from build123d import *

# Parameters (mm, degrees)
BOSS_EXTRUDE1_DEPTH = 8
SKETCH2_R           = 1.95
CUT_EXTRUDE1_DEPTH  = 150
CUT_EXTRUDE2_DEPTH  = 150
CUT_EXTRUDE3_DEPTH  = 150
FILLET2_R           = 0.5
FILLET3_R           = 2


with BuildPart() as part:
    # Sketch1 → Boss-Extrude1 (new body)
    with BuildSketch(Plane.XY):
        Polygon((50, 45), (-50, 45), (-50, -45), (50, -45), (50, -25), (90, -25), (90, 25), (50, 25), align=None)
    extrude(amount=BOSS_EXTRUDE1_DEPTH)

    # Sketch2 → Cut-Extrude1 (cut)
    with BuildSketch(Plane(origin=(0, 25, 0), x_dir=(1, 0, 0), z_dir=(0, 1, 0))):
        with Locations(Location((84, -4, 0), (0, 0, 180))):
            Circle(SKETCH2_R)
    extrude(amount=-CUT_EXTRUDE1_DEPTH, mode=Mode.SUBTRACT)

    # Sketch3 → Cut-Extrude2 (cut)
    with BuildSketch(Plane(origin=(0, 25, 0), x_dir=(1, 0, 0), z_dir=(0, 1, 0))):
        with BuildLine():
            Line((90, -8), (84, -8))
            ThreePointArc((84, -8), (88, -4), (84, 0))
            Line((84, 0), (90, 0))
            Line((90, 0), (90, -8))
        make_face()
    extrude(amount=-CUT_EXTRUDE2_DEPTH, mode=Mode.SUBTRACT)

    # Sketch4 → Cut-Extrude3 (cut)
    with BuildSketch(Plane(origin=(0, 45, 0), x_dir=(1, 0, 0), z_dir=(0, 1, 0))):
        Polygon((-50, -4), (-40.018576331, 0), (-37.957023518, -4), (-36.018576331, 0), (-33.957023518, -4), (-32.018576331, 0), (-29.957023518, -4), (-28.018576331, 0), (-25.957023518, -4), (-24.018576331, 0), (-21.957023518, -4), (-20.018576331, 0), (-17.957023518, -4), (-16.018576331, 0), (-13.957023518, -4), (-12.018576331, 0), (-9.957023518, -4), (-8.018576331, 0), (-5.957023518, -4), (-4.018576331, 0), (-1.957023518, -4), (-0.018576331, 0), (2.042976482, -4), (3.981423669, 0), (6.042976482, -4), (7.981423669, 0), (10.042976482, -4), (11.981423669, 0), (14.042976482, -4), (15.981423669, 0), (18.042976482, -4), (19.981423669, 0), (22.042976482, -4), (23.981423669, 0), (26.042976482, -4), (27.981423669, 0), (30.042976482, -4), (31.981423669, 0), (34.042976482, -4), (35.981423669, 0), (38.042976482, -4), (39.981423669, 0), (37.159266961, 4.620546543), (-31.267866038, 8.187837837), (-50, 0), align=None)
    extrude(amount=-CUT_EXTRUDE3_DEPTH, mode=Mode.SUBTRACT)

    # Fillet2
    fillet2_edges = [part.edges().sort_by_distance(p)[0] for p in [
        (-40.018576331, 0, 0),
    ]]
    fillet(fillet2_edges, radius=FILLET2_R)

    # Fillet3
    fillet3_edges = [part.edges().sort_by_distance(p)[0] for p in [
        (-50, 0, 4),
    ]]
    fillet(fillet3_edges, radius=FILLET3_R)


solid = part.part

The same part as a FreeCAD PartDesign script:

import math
import FreeCAD as App
import Part
import Sketcher
Q = App.Units.Quantity


def edges_at(feature, points):
    """Names of the edges that pass closest to the given points."""
    edges = feature.Shape.Edges
    near = lambda p: min(range(len(edges)), key=lambda i: edges[i].distToShape(Part.Vertex(*p))[0])
    return sorted({f"Edge{near(p) + 1}" for p in points})

doc = App.newDocument("Part")
body = doc.addObject("PartDesign::Body", "Body")

# Sketch on XY plane
sketch1 = doc.addObject("Sketcher::SketchObject", "Sketch")
body.addObject(sketch1)
sketch1.AttachmentSupport = (doc.XY_Plane, [""])
sketch1.MapMode = "FlatFace"
sketch1.addGeometry(Part.LineSegment(App.Vector(50, 45, 0), App.Vector(-50, 45, 0)), False)
sketch1.addGeometry(Part.LineSegment(App.Vector(-50, 45, 0), App.Vector(-50, -45, 0)), False)
sketch1.addGeometry(Part.LineSegment(App.Vector(-50, -45, 0), App.Vector(50, -45, 0)), False)
sketch1.addGeometry(Part.LineSegment(App.Vector(50, -45, 0), App.Vector(50, -25, 0)), False)
sketch1.addGeometry(Part.LineSegment(App.Vector(50, -25, 0), App.Vector(90, -25, 0)), False)
sketch1.addGeometry(Part.LineSegment(App.Vector(90, -25, 0), App.Vector(90, 25, 0)), False)
sketch1.addGeometry(Part.LineSegment(App.Vector(90, 25, 0), App.Vector(50, 25, 0)), False)
sketch1.addGeometry(Part.LineSegment(App.Vector(50, 25, 0), App.Vector(50, 45, 0)), False)
sketch1.addConstraint(Sketcher.Constraint("Coincident", 0, 2, 1, 1))
sketch1.addConstraint(Sketcher.Constraint("Coincident", 1, 2, 2, 1))
sketch1.addConstraint(Sketcher.Constraint("Coincident", 2, 2, 3, 1))
sketch1.addConstraint(Sketcher.Constraint("Coincident", 3, 2, 4, 1))
sketch1.addConstraint(Sketcher.Constraint("Coincident", 4, 2, 5, 1))
sketch1.addConstraint(Sketcher.Constraint("Coincident", 5, 2, 6, 1))
sketch1.addConstraint(Sketcher.Constraint("Coincident", 6, 2, 7, 1))
sketch1.addConstraint(Sketcher.Constraint("Coincident", 7, 2, 0, 1))
sketch1.addConstraint(Sketcher.Constraint("Horizontal", 0))
sketch1.addConstraint(Sketcher.Constraint("Vertical", 1))
sketch1.addConstraint(Sketcher.Constraint("Horizontal", 2))
sketch1.addConstraint(Sketcher.Constraint("Vertical", 3))
sketch1.addConstraint(Sketcher.Constraint("Horizontal", 4))
sketch1.addConstraint(Sketcher.Constraint("Vertical", 5))
sketch1.addConstraint(Sketcher.Constraint("Horizontal", 6))
sketch1.addConstraint(Sketcher.Constraint("Vertical", 7))
sketch1.addConstraint(Sketcher.Constraint("Symmetric", 0, 2, 2, 2, -1, 1))
sketch1.addConstraint(Sketcher.Constraint("Symmetric", 3, 2, 6, 2, -1))
sketch1.addConstraint(Sketcher.Constraint("DistanceX", 0, 2, 0, 1, Q("100 mm")))
sketch1.addConstraint(Sketcher.Constraint("DistanceX", 4, 1, 4, 2, Q("40 mm")))
sketch1.addConstraint(Sketcher.Constraint("DistanceY", 1, 2, 1, 1, Q("90 mm")))
sketch1.addConstraint(Sketcher.Constraint("DistanceY", 3, 1, 3, 2, Q("20 mm")))
pad1 = doc.addObject("PartDesign::Pad", "Pad")
body.addObject(pad1)
pad1.Profile = sketch1
pad1.Length = 8

# Sketch on XZ plane
sketch2 = doc.addObject("Sketcher::SketchObject", "Sketch001")
body.addObject(sketch2)
sketch2.AttachmentSupport = (doc.XZ_Plane, [""])
sketch2.MapMode = "FlatFace"
sketch2.AttachmentOffset = App.Placement(App.Vector(0, 0, -25), App.Rotation())
sketch2.addGeometry(Part.Circle(App.Vector(84, 4, 0), App.Vector(0, 0, 1), 1.9), False)
sketch2.addConstraint(Sketcher.Constraint("Diameter", 0, Q("3.9 mm")))
sketch2.addConstraint(Sketcher.Constraint("DistanceX", -1, 1, 0, 3, Q("84 mm")))
sketch2.addConstraint(Sketcher.Constraint("DistanceY", -1, 1, 0, 3, Q("4 mm")))
pocket1 = doc.addObject("PartDesign::Pocket", "Pocket")
body.addObject(pocket1)
pocket1.Profile = sketch2
pocket1.Length = 150
pocket1.Reversed = True

# Sketch on XZ plane
sketch3 = doc.addObject("Sketcher::SketchObject", "Sketch002")
body.addObject(sketch3)
sketch3.AttachmentSupport = (doc.XZ_Plane, [""])
sketch3.MapMode = "FlatFace"
sketch3.AttachmentOffset = App.Placement(App.Vector(0, 0, -25), App.Rotation())
sketch3.addGeometry(Part.LineSegment(App.Vector(84, 8, 0), App.Vector(90, 8, 0)), False)
sketch3.addGeometry(Part.LineSegment(App.Vector(90, 8, 0), App.Vector(90, 0, 0)), False)
sketch3.addGeometry(Part.LineSegment(App.Vector(90, 0, 0), App.Vector(84, 0, 0)), False)
sketch3.addGeometry(Part.ArcOfCircle(Part.Circle(App.Vector(84, 4, 0), App.Vector(0, 0, 1), 4), math.radians(-90), math.radians(90)), False)
sketch3.addConstraint(Sketcher.Constraint("Coincident", 0, 2, 1, 1))
sketch3.addConstraint(Sketcher.Constraint("Coincident", 1, 2, 2, 1))
sketch3.addConstraint(Sketcher.Constraint("Tangent", 2, 2, 3, 1))
sketch3.addConstraint(Sketcher.Constraint("Tangent", 3, 2, 0, 1))
sketch3.addConstraint(Sketcher.Constraint("Horizontal", 0))
sketch3.addConstraint(Sketcher.Constraint("Vertical", 1))
sketch3.addConstraint(Sketcher.Constraint("Horizontal", 2))
sketch3.addConstraint(Sketcher.Constraint("PointOnObject", 1, 2, -1))
sketch3.addConstraint(Sketcher.Constraint("Radius", 3, Q("4 mm")))
sketch3.addConstraint(Sketcher.Constraint("DistanceX", 0, 1, 0, 2, Q("6 mm")))
sketch3.addConstraint(Sketcher.Constraint("DistanceX", -1, 1, 3, 3, Q("84 mm")))
pocket2 = doc.addObject("PartDesign::Pocket", "Pocket001")
body.addObject(pocket2)
pocket2.Profile = sketch3
pocket2.Length = 150
pocket2.Reversed = True

# Sketch on XZ plane
sketch4 = doc.addObject("Sketcher::SketchObject", "Sketch003")
body.addObject(sketch4)
sketch4.AttachmentSupport = (doc.XZ_Plane, [""])
sketch4.MapMode = "FlatFace"
sketch4.AttachmentOffset = App.Placement(App.Vector(0, 0, -45), App.Rotation())
sketch4.addGeometry(Part.LineSegment(App.Vector(-50, 4, 0), App.Vector(-40, 0, 0)), False)
sketch4.addGeometry(Part.LineSegment(App.Vector(-40, 0, 0), App.Vector(-38, 4, 0)), False)
sketch4.addGeometry(Part.LineSegment(App.Vector(-38, 4, 0), App.Vector(-36, 0, 0)), False)
sketch4.addGeometry(Part.LineSegment(App.Vector(-36, 0, 0), App.Vector(-34, 4, 0)), False)
sketch4.addGeometry(Part.LineSegment(App.Vector(-34, 4, 0), App.Vector(-32, 0, 0)), False)
sketch4.addGeometry(Part.LineSegment(App.Vector(-32, 0, 0), App.Vector(-30, 4, 0)), False)
sketch4.addGeometry(Part.LineSegment(App.Vector(-30, 4, 0), App.Vector(-28, 0, 0)), False)
sketch4.addGeometry(Part.LineSegment(App.Vector(-28, 0, 0), App.Vector(-26, 4, 0)), False)
sketch4.addGeometry(Part.LineSegment(App.Vector(-26, 4, 0), App.Vector(-24, 0, 0)), False)
sketch4.addGeometry(Part.LineSegment(App.Vector(-24, 0, 0), App.Vector(-22, 4, 0)), False)
sketch4.addGeometry(Part.LineSegment(App.Vector(-22, 4, 0), App.Vector(-20, 0, 0)), False)
sketch4.addGeometry(Part.LineSegment(App.Vector(-20, 0, 0), App.Vector(-18, 4, 0)), False)
sketch4.addGeometry(Part.LineSegment(App.Vector(-18, 4, 0), App.Vector(-16, 0, 0)), False)
sketch4.addGeometry(Part.LineSegment(App.Vector(-16, 0, 0), App.Vector(-14, 4, 0)), False)
sketch4.addGeometry(Part.LineSegment(App.Vector(-14, 4, 0), App.Vector(-12, 0, 0)), False)
sketch4.addGeometry(Part.LineSegment(App.Vector(-12, 0, 0), App.Vector(-10, 4, 0)), False)
sketch4.addGeometry(Part.LineSegment(App.Vector(-10, 4, 0), App.Vector(-8, 0, 0)), False)
sketch4.addGeometry(Part.LineSegment(App.Vector(-8, 0, 0), App.Vector(-6, 4, 0)), False)
sketch4.addGeometry(Part.LineSegment(App.Vector(-6, 4, 0), App.Vector(-4, 0, 0)), False)
sketch4.addGeometry(Part.LineSegment(App.Vector(-4, 0, 0), App.Vector(-2, 4, 0)), False)
sketch4.addGeometry(Part.LineSegment(App.Vector(-2, 4, 0), App.Vector(0, 0, 0)), False)
sketch4.addGeometry(Part.LineSegment(App.Vector(0, 0, 0), App.Vector(2, 4, 0)), False)
sketch4.addGeometry(Part.LineSegment(App.Vector(2, 4, 0), App.Vector(4, 0, 0)), False)
sketch4.addGeometry(Part.LineSegment(App.Vector(4, 0, 0), App.Vector(6, 4, 0)), False)
sketch4.addGeometry(Part.LineSegment(App.Vector(6, 4, 0), App.Vector(8, 0, 0)), False)
sketch4.addGeometry(Part.LineSegment(App.Vector(8, 0, 0), App.Vector(10, 4, 0)), False)
sketch4.addGeometry(Part.LineSegment(App.Vector(10, 4, 0), App.Vector(12, 0, 0)), False)
sketch4.addGeometry(Part.LineSegment(App.Vector(12, 0, 0), App.Vector(14, 4, 0)), False)
sketch4.addGeometry(Part.LineSegment(App.Vector(14, 4, 0), App.Vector(16, 0, 0)), False)
sketch4.addGeometry(Part.LineSegment(App.Vector(16, 0, 0), App.Vector(18, 4, 0)), False)
sketch4.addGeometry(Part.LineSegment(App.Vector(18, 4, 0), App.Vector(20, 0, 0)), False)
sketch4.addGeometry(Part.LineSegment(App.Vector(20, 0, 0), App.Vector(22, 4, 0)), False)
sketch4.addGeometry(Part.LineSegment(App.Vector(22, 4, 0), App.Vector(24, 0, 0)), False)
sketch4.addGeometry(Part.LineSegment(App.Vector(24, 0, 0), App.Vector(26, 4, 0)), False)
sketch4.addGeometry(Part.LineSegment(App.Vector(26, 4, 0), App.Vector(28, 0, 0)), False)
sketch4.addGeometry(Part.LineSegment(App.Vector(28, 0, 0), App.Vector(30, 4, 0)), False)
sketch4.addGeometry(Part.LineSegment(App.Vector(30, 4, 0), App.Vector(32, 0, 0)), False)
sketch4.addGeometry(Part.LineSegment(App.Vector(32, 0, 0), App.Vector(34, 4, 0)), False)
sketch4.addGeometry(Part.LineSegment(App.Vector(34, 4, 0), App.Vector(36, 0, 0)), False)
sketch4.addGeometry(Part.LineSegment(App.Vector(36, 0, 0), App.Vector(38, 4, 0)), False)
sketch4.addGeometry(Part.LineSegment(App.Vector(38, 4, 0), App.Vector(40, 0, 0)), False)
sketch4.addGeometry(Part.LineSegment(App.Vector(40, 0, 0), App.Vector(37.2, -4.6, 0)), False)
sketch4.addGeometry(Part.LineSegment(App.Vector(37.2, -4.6, 0), App.Vector(-31.3, -8.2, 0)), False)
sketch4.addGeometry(Part.LineSegment(App.Vector(-31.3, -8.2, 0), App.Vector(-50, 0, 0)), False)
sketch4.addGeometry(Part.LineSegment(App.Vector(-50, 0, 0), App.Vector(-50, 4, 0)), False)
sketch4.addConstraint(Sketcher.Constraint("Coincident", 0, 2, 1, 1))
sketch4.addConstraint(Sketcher.Constraint("Coincident", 1, 2, 2, 1))
sketch4.addConstraint(Sketcher.Constraint("Coincident", 2, 2, 3, 1))
sketch4.addConstraint(Sketcher.Constraint("Coincident", 3, 2, 4, 1))
sketch4.addConstraint(Sketcher.Constraint("Coincident", 4, 2, 5, 1))
sketch4.addConstraint(Sketcher.Constraint("Coincident", 5, 2, 6, 1))
sketch4.addConstraint(Sketcher.Constraint("Coincident", 6, 2, 7, 1))
sketch4.addConstraint(Sketcher.Constraint("Coincident", 7, 2, 8, 1))
sketch4.addConstraint(Sketcher.Constraint("Coincident", 8, 2, 9, 1))
sketch4.addConstraint(Sketcher.Constraint("Coincident", 9, 2, 10, 1))
sketch4.addConstraint(Sketcher.Constraint("Coincident", 10, 2, 11, 1))
sketch4.addConstraint(Sketcher.Constraint("Coincident", 11, 2, 12, 1))
sketch4.addConstraint(Sketcher.Constraint("Coincident", 12, 2, 13, 1))
sketch4.addConstraint(Sketcher.Constraint("Coincident", 13, 2, 14, 1))
sketch4.addConstraint(Sketcher.Constraint("Coincident", 14, 2, 15, 1))
sketch4.addConstraint(Sketcher.Constraint("Coincident", 15, 2, 16, 1))
sketch4.addConstraint(Sketcher.Constraint("Coincident", 16, 2, 17, 1))
sketch4.addConstraint(Sketcher.Constraint("Coincident", 17, 2, 18, 1))
sketch4.addConstraint(Sketcher.Constraint("Coincident", 18, 2, 19, 1))
sketch4.addConstraint(Sketcher.Constraint("Coincident", 19, 2, 20, 1))
sketch4.addConstraint(Sketcher.Constraint("Coincident", 20, 2, 21, 1))
sketch4.addConstraint(Sketcher.Constraint("Coincident", 21, 2, 22, 1))
sketch4.addConstraint(Sketcher.Constraint("Coincident", 22, 2, 23, 1))
sketch4.addConstraint(Sketcher.Constraint("Coincident", 23, 2, 24, 1))
sketch4.addConstraint(Sketcher.Constraint("Coincident", 24, 2, 25, 1))
sketch4.addConstraint(Sketcher.Constraint("Coincident", 25, 2, 26, 1))
sketch4.addConstraint(Sketcher.Constraint("Coincident", 26, 2, 27, 1))
sketch4.addConstraint(Sketcher.Constraint("Coincident", 27, 2, 28, 1))
sketch4.addConstraint(Sketcher.Constraint("Coincident", 28, 2, 29, 1))
sketch4.addConstraint(Sketcher.Constraint("Coincident", 29, 2, 30, 1))
sketch4.addConstraint(Sketcher.Constraint("Coincident", 30, 2, 31, 1))
sketch4.addConstraint(Sketcher.Constraint("Coincident", 31, 2, 32, 1))
sketch4.addConstraint(Sketcher.Constraint("Coincident", 32, 2, 33, 1))
sketch4.addConstraint(Sketcher.Constraint("Coincident", 33, 2, 34, 1))
sketch4.addConstraint(Sketcher.Constraint("Coincident", 34, 2, 35, 1))
sketch4.addConstraint(Sketcher.Constraint("Coincident", 35, 2, 36, 1))
sketch4.addConstraint(Sketcher.Constraint("Coincident", 36, 2, 37, 1))
sketch4.addConstraint(Sketcher.Constraint("Coincident", 37, 2, 38, 1))
sketch4.addConstraint(Sketcher.Constraint("Coincident", 38, 2, 39, 1))
sketch4.addConstraint(Sketcher.Constraint("Coincident", 39, 2, 40, 1))
sketch4.addConstraint(Sketcher.Constraint("Coincident", 40, 2, 41, 1))
sketch4.addConstraint(Sketcher.Constraint("Coincident", 41, 2, 42, 1))
sketch4.addConstraint(Sketcher.Constraint("Coincident", 42, 2, 43, 1))
sketch4.addConstraint(Sketcher.Constraint("Coincident", 43, 2, 44, 1))
sketch4.addConstraint(Sketcher.Constraint("Coincident", 44, 2, 0, 1))
sketch4.addConstraint(Sketcher.Constraint("Vertical", 44))
sketch4.addConstraint(Sketcher.Constraint("PointOnObject", 0, 2, -1))
sketch4.addConstraint(Sketcher.Constraint("PointOnObject", 2, 2, -1))
sketch4.addConstraint(Sketcher.Constraint("PointOnObject", 4, 2, -1))
sketch4.addConstraint(Sketcher.Constraint("PointOnObject", 6, 2, -1))
sketch4.addConstraint(Sketcher.Constraint("PointOnObject", 8, 2, -1))
sketch4.addConstraint(Sketcher.Constraint("PointOnObject", 10, 2, -1))
sketch4.addConstraint(Sketcher.Constraint("PointOnObject", 12, 2, -1))
sketch4.addConstraint(Sketcher.Constraint("PointOnObject", 14, 2, -1))
sketch4.addConstraint(Sketcher.Constraint("PointOnObject", 16, 2, -1))
sketch4.addConstraint(Sketcher.Constraint("PointOnObject", 18, 2, -1))
sketch4.addConstraint(Sketcher.Constraint("PointOnObject", 20, 2, -1))
sketch4.addConstraint(Sketcher.Constraint("PointOnObject", 22, 2, -1))
sketch4.addConstraint(Sketcher.Constraint("PointOnObject", 24, 2, -1))
sketch4.addConstraint(Sketcher.Constraint("PointOnObject", 26, 2, -1))
sketch4.addConstraint(Sketcher.Constraint("PointOnObject", 28, 2, -1))
sketch4.addConstraint(Sketcher.Constraint("PointOnObject", 30, 2, -1))
sketch4.addConstraint(Sketcher.Constraint("PointOnObject", 32, 2, -1))
sketch4.addConstraint(Sketcher.Constraint("PointOnObject", 34, 2, -1))
sketch4.addConstraint(Sketcher.Constraint("PointOnObject", 36, 2, -1))
sketch4.addConstraint(Sketcher.Constraint("PointOnObject", 38, 2, -1))
sketch4.addConstraint(Sketcher.Constraint("PointOnObject", 40, 2, -1))
sketch4.addConstraint(Sketcher.Constraint("PointOnObject", 43, 2, -1))
sketch4.addConstraint(Sketcher.Constraint("Parallel", 1, 3))
sketch4.addConstraint(Sketcher.Constraint("Parallel", 2, 4))
sketch4.addConstraint(Sketcher.Constraint("Parallel", 3, 5))
sketch4.addConstraint(Sketcher.Constraint("Parallel", 4, 6))
sketch4.addConstraint(Sketcher.Constraint("Parallel", 5, 7))
sketch4.addConstraint(Sketcher.Constraint("Parallel", 6, 8))
sketch4.addConstraint(Sketcher.Constraint("Parallel", 7, 9))
sketch4.addConstraint(Sketcher.Constraint("Parallel", 8, 10))
sketch4.addConstraint(Sketcher.Constraint("Parallel", 9, 11))
sketch4.addConstraint(Sketcher.Constraint("Parallel", 10, 12))
sketch4.addConstraint(Sketcher.Constraint("Parallel", 11, 13))
sketch4.addConstraint(Sketcher.Constraint("Parallel", 12, 14))
sketch4.addConstraint(Sketcher.Constraint("Parallel", 13, 15))
sketch4.addConstraint(Sketcher.Constraint("Parallel", 14, 16))
sketch4.addConstraint(Sketcher.Constraint("Parallel", 15, 17))
sketch4.addConstraint(Sketcher.Constraint("Parallel", 16, 18))
sketch4.addConstraint(Sketcher.Constraint("Parallel", 17, 19))
sketch4.addConstraint(Sketcher.Constraint("Parallel", 18, 20))
sketch4.addConstraint(Sketcher.Constraint("Parallel", 19, 21))
sketch4.addConstraint(Sketcher.Constraint("Parallel", 20, 22))
sketch4.addConstraint(Sketcher.Constraint("Parallel", 21, 23))
sketch4.addConstraint(Sketcher.Constraint("Parallel", 22, 24))
sketch4.addConstraint(Sketcher.Constraint("Parallel", 23, 25))
sketch4.addConstraint(Sketcher.Constraint("Parallel", 24, 26))
sketch4.addConstraint(Sketcher.Constraint("Parallel", 25, 27))
sketch4.addConstraint(Sketcher.Constraint("Parallel", 26, 28))
sketch4.addConstraint(Sketcher.Constraint("Parallel", 27, 29))
sketch4.addConstraint(Sketcher.Constraint("Parallel", 28, 30))
sketch4.addConstraint(Sketcher.Constraint("Parallel", 29, 31))
sketch4.addConstraint(Sketcher.Constraint("Parallel", 30, 32))
sketch4.addConstraint(Sketcher.Constraint("Parallel", 31, 33))
sketch4.addConstraint(Sketcher.Constraint("Parallel", 32, 34))
sketch4.addConstraint(Sketcher.Constraint("Parallel", 33, 35))
sketch4.addConstraint(Sketcher.Constraint("Parallel", 34, 36))
sketch4.addConstraint(Sketcher.Constraint("Parallel", 35, 37))
sketch4.addConstraint(Sketcher.Constraint("Parallel", 36, 38))
sketch4.addConstraint(Sketcher.Constraint("Parallel", 37, 39))
sketch4.addConstraint(Sketcher.Constraint("Parallel", 38, 40))
sketch4.addConstraint(Sketcher.Constraint("Horizontal", 1, 2, 3, 2))
sketch4.addConstraint(Sketcher.Constraint("Horizontal", 3, 2, 5, 2))
sketch4.addConstraint(Sketcher.Constraint("Horizontal", 5, 2, 7, 2))
sketch4.addConstraint(Sketcher.Constraint("Horizontal", 7, 2, 9, 2))
sketch4.addConstraint(Sketcher.Constraint("Horizontal", 9, 2, 11, 2))
sketch4.addConstraint(Sketcher.Constraint("Horizontal", 11, 2, 13, 2))
sketch4.addConstraint(Sketcher.Constraint("Horizontal", 13, 2, 15, 2))
sketch4.addConstraint(Sketcher.Constraint("Horizontal", 15, 2, 17, 2))
sketch4.addConstraint(Sketcher.Constraint("Horizontal", 17, 2, 19, 2))
sketch4.addConstraint(Sketcher.Constraint("Horizontal", 19, 2, 21, 2))
sketch4.addConstraint(Sketcher.Constraint("Horizontal", 21, 2, 23, 2))
sketch4.addConstraint(Sketcher.Constraint("Horizontal", 23, 2, 25, 2))
sketch4.addConstraint(Sketcher.Constraint("Horizontal", 25, 2, 27, 2))
sketch4.addConstraint(Sketcher.Constraint("Horizontal", 27, 2, 29, 2))
sketch4.addConstraint(Sketcher.Constraint("Horizontal", 29, 2, 31, 2))
sketch4.addConstraint(Sketcher.Constraint("Horizontal", 31, 2, 33, 2))
sketch4.addConstraint(Sketcher.Constraint("Horizontal", 33, 2, 35, 2))
sketch4.addConstraint(Sketcher.Constraint("Horizontal", 35, 2, 37, 2))
sketch4.addConstraint(Sketcher.Constraint("Horizontal", 37, 2, 39, 2))
sketch4.addConstraint(Sketcher.Constraint("Horizontal", 39, 2, 44, 2))
sketch4.addConstraint(Sketcher.Constraint("DistanceY", 44, 1, 44, 2, Q("4 mm")))
sketch4.addConstraint(Sketcher.Constraint("DistanceX", 43, 2, -1, 1, Q("50 mm")))
sketch4.addConstraint(Sketcher.Constraint("DistanceX", 0, 2, 2, 2, Q("4 mm")))
sketch4.addConstraint(Sketcher.Constraint("Distance", 1, Q("4.5 mm")))
sketch4.addConstraint(Sketcher.Constraint("DistanceX", 41, 2, 39, 2, Q("0.88371 mm")))
sketch4.addConstraint(Sketcher.Constraint("DistanceX", 4, 2, 42, 2, Q("0.75071 mm")))
sketch4.addConstraint(Sketcher.Constraint("Distance", 0, Q("10.753084 mm")))
sketch4.addConstraint(Sketcher.Constraint("Distance", 41, Q("5.414242 mm")))
sketch4.addConstraint(Sketcher.Constraint("Distance", 42, Q("68.520056 mm")))
pocket3 = doc.addObject("PartDesign::Pocket", "Pocket002")
body.addObject(pocket3)
pocket3.Profile = sketch4
pocket3.Length = 150
pocket3.Reversed = True
doc.recompute()

fillet = doc.addObject("PartDesign::Fillet", "Fillet")
body.addObject(fillet)
fillet.Base = (pocket3, edges_at(pocket3, [(-40.019, 0, 0)]))
fillet.Radius = 0.5
doc.recompute()

fillet2 = doc.addObject("PartDesign::Fillet", "Fillet001")
body.addObject(fillet2)
fillet2.Base = (fillet, edges_at(fillet, [(-50, 0, 4)]))
fillet2.Radius = 2

doc.recompute()
